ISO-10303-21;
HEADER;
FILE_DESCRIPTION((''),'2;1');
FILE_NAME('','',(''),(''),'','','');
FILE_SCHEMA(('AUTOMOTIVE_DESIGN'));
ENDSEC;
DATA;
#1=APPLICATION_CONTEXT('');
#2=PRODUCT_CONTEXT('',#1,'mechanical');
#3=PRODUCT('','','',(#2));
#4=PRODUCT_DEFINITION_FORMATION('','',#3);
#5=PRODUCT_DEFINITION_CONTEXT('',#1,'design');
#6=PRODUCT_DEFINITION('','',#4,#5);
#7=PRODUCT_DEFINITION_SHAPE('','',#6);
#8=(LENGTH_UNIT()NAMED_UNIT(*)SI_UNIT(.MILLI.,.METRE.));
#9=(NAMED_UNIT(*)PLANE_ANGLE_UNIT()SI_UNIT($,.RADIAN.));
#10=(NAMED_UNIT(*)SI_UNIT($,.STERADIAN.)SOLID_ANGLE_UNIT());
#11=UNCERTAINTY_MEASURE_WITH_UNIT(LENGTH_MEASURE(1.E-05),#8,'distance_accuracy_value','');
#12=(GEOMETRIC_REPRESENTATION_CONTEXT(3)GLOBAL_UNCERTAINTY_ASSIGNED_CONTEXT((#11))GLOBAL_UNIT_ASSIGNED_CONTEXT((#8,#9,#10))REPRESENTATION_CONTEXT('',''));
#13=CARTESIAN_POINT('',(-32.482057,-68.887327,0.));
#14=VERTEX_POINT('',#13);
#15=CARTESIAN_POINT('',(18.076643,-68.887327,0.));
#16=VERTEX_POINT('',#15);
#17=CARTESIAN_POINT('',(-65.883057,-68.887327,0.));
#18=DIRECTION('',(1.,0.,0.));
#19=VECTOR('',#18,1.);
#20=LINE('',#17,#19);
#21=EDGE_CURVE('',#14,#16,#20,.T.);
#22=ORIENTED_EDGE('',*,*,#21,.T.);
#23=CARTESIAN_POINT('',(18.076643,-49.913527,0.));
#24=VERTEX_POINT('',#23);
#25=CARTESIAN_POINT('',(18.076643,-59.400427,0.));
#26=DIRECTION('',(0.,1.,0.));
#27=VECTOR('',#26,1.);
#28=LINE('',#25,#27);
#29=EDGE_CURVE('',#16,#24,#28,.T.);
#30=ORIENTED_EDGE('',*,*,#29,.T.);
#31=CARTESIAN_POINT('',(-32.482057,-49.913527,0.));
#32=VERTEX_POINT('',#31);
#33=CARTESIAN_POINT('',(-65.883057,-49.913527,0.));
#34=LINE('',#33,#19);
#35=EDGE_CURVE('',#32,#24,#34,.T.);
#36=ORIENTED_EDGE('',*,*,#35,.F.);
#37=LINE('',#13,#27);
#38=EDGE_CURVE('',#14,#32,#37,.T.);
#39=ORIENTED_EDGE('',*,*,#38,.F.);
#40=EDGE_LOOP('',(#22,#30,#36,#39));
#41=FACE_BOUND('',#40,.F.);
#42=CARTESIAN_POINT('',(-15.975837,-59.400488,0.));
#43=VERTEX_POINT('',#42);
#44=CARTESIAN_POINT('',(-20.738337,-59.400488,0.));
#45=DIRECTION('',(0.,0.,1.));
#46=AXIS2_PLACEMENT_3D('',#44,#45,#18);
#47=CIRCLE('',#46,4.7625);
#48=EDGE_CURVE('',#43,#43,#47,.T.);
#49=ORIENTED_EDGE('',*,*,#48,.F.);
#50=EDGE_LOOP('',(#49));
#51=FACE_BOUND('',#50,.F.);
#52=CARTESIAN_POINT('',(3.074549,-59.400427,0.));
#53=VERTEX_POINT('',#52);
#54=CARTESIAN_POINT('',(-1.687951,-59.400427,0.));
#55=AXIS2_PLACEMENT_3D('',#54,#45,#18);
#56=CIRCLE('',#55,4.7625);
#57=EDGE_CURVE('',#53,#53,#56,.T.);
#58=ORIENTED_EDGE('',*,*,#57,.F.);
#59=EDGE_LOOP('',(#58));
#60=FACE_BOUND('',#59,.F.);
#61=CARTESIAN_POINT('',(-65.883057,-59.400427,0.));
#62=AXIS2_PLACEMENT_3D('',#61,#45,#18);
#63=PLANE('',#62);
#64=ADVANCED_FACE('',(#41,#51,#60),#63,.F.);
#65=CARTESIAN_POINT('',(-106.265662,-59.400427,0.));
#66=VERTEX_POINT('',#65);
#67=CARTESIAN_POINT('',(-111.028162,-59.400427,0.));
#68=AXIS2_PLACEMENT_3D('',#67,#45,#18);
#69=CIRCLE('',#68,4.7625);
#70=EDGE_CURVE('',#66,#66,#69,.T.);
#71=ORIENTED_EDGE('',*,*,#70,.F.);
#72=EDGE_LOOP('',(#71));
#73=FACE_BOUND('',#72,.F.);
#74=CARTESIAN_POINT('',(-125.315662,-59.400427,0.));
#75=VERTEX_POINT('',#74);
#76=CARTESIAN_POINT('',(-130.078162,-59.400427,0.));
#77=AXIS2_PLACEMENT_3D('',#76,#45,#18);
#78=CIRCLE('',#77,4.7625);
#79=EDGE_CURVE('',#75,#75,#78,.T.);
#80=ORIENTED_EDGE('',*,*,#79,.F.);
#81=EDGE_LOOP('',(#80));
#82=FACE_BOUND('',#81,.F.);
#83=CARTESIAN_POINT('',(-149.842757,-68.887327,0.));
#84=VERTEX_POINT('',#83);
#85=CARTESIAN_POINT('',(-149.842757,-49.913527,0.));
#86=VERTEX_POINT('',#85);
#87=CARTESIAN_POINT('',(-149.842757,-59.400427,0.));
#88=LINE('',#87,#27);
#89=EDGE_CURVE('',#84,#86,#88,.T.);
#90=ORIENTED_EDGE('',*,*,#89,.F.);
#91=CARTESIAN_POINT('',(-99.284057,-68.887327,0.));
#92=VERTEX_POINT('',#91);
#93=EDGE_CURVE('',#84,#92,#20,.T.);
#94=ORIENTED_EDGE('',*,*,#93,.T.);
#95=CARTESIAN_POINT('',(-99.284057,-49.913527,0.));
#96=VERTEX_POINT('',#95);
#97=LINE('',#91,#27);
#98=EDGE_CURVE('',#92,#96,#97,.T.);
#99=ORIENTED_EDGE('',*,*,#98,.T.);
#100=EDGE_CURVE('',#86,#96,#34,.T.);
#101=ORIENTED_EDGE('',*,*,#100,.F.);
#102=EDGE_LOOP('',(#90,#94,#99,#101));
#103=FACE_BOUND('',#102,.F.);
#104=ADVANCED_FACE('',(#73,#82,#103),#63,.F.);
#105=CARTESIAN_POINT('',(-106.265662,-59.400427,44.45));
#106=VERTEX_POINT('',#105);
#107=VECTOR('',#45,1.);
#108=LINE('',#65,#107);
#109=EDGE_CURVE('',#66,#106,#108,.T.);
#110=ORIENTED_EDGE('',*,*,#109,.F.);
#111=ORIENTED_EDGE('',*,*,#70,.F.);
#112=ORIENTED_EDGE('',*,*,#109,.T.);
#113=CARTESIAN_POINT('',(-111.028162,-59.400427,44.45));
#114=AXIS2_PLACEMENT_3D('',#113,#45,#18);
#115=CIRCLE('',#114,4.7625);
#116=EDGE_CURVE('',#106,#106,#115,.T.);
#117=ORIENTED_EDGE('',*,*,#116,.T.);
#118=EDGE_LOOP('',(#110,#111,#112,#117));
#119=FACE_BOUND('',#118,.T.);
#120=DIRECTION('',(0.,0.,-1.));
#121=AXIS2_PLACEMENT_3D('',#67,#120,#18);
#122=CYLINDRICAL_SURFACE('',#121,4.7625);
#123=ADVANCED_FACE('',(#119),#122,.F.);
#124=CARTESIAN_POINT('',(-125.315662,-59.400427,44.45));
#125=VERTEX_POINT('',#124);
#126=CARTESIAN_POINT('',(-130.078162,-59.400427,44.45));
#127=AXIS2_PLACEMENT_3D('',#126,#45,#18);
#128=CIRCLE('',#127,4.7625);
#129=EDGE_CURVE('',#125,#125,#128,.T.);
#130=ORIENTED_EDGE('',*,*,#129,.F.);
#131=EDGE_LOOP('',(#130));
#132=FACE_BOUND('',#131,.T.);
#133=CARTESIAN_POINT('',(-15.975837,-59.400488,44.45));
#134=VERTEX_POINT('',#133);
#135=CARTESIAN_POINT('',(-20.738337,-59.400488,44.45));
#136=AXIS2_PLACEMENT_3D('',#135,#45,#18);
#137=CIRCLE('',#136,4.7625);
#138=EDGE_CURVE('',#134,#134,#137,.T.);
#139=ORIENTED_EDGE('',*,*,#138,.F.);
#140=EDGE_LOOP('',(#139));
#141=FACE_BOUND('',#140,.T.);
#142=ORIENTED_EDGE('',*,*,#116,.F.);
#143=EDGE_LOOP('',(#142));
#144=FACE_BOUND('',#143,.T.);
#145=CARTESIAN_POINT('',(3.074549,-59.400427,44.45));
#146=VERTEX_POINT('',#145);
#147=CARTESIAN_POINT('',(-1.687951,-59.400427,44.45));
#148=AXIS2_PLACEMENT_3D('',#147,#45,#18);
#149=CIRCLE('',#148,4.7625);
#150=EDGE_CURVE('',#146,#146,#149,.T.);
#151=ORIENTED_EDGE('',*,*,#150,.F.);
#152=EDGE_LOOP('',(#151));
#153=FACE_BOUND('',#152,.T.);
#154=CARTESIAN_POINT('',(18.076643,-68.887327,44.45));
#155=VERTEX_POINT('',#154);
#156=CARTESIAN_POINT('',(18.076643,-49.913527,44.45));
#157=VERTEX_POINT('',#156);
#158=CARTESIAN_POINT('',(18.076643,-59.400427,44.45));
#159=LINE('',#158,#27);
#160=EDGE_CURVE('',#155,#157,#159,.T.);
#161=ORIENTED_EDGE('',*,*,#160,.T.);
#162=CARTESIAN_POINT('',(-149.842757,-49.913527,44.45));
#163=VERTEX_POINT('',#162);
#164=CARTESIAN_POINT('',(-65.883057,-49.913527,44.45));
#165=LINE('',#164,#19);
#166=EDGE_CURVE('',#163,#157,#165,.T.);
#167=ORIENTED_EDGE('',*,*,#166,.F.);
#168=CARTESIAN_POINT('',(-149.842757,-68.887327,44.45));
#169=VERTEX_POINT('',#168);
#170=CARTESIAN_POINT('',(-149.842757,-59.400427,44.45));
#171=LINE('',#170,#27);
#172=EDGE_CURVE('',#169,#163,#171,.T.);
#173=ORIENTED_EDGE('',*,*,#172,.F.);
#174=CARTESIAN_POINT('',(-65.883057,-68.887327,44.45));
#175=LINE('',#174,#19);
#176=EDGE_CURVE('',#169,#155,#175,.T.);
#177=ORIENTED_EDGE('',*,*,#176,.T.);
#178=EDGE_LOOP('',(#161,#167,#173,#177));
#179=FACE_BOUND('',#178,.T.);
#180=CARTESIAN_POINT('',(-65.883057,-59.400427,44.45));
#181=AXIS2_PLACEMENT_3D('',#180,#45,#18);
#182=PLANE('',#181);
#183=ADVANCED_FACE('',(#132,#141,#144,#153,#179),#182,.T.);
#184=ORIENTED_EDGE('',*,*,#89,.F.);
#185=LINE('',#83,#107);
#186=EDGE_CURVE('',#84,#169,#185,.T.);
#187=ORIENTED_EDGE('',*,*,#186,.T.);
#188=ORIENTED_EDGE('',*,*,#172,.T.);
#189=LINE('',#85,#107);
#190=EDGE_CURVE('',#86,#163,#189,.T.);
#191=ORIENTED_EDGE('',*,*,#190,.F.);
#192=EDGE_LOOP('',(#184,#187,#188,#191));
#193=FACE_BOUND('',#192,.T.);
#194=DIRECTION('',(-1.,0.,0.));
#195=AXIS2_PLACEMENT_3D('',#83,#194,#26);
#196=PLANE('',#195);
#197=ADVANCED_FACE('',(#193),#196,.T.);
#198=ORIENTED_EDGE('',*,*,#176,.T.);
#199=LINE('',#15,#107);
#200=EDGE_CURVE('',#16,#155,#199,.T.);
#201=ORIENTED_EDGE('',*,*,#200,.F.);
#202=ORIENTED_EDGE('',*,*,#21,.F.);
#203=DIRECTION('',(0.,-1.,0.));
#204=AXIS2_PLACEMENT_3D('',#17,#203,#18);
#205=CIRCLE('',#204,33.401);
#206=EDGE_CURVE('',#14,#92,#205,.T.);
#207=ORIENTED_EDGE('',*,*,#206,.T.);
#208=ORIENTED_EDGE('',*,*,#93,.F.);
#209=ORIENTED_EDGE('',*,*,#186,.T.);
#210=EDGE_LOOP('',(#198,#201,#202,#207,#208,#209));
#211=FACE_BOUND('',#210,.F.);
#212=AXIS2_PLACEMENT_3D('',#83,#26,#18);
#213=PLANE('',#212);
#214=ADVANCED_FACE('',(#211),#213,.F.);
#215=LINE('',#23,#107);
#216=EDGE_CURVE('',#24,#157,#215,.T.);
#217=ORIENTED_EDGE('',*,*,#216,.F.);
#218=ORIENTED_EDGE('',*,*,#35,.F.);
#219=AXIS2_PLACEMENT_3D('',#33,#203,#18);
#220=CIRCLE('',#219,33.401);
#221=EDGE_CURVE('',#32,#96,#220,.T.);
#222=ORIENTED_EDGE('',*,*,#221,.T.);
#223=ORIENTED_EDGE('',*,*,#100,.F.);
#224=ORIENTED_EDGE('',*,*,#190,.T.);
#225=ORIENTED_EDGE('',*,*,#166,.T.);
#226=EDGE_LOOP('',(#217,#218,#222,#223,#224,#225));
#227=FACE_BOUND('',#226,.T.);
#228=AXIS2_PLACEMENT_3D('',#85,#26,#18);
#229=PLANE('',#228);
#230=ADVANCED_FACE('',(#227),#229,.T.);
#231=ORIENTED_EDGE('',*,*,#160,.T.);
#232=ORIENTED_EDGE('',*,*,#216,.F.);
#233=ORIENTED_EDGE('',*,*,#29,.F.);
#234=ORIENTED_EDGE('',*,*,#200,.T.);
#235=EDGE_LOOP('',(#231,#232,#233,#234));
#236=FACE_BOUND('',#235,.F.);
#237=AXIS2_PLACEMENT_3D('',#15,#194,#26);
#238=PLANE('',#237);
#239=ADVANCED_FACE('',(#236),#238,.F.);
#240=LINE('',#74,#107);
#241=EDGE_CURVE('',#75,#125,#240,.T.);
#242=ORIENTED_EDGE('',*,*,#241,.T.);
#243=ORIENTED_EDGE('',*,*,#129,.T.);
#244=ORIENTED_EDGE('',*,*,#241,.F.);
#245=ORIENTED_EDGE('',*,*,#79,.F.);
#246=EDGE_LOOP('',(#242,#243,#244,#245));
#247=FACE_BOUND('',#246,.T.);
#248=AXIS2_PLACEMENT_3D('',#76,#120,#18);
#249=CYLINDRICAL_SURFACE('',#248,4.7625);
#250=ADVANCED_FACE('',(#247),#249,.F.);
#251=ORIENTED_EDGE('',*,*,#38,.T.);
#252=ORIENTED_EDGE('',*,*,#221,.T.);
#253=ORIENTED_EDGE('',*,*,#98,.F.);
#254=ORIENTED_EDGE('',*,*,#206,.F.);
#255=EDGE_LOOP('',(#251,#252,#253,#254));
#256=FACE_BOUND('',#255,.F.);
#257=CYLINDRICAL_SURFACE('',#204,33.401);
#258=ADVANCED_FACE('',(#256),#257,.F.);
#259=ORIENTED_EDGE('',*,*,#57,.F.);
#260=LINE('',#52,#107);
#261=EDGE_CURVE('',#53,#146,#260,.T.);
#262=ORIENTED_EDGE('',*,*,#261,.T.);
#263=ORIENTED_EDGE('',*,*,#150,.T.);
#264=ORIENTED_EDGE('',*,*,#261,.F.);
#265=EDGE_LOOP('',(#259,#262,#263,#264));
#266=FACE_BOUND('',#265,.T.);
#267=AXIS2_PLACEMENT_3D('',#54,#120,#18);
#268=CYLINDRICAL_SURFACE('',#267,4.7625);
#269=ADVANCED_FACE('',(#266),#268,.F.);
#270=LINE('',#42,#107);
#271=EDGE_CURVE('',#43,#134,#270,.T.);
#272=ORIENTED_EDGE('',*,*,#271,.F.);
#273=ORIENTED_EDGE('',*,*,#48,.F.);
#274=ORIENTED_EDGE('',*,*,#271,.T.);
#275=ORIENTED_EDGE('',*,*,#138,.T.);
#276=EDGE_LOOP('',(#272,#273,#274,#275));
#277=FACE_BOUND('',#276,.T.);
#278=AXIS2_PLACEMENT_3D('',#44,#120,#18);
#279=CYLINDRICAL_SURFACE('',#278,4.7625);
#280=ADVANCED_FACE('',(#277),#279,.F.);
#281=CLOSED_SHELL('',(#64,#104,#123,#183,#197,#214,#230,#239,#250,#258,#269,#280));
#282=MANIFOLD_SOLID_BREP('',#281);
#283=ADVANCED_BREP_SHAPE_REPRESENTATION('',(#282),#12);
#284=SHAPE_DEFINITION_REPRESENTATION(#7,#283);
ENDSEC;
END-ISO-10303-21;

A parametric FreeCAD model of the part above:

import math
import FreeCAD as App
import Part
import Sketcher
from FreeCAD import Vector
Q = App.Units.Quantity


def add_polygon(sketch, points):
    """Adds a closed chain of lines whose ends are joined by coincident constraints."""
    first, n = sketch.GeometryCount, len(points)
    for a, b in zip(points, points[1:] + points[:1]):
        sketch.addGeometry(Part.LineSegment(App.Vector(*a, 0), App.Vector(*b, 0)), False)
    for i in range(n):
        sketch.addConstraint(Sketcher.Constraint("Coincident", first + i, 2, first + (i + 1) % n, 1))

doc = App.newDocument("Part")
body = doc.addObject("PartDesign::Body", "Body")

# Sketch on XY plane
sketch1 = body.newObject("Sketcher::SketchObject", "Sketch")
sketch1.AttachmentSupport = (doc.getObject("XY_Plane"), [""])
sketch1.MapMode = "FlatFace"
add_polygon(sketch1, [(-149.8, -49.9), (-149.8, -68.9), (18.1, -68.9), (18.1, -49.9)])  # lines 0-3
sketch1.addGeometry(Part.Circle(Vector(-20.7, -59.4, 0), Vector(0, 0, 1), 4.8), False)  # 4
sketch1.addGeometry(Part.Circle(Vector(-130.1, -59.4, 0), Vector(0, 0, 1), 4.8), False)  # 5
sketch1.addGeometry(Part.Circle(Vector(-111, -59.4, 0), Vector(0, 0, 1), 4.8), False)  # 6
sketch1.addGeometry(Part.Circle(Vector(-1.7, -59.4, 0), Vector(0, 0, 1), 4.8), False)  # 7
sketch1.addConstraint(Sketcher.Constraint("Vertical", 0))
sketch1.addConstraint(Sketcher.Constraint("Horizontal", 1))
sketch1.addConstraint(Sketcher.Constraint("Vertical", 2))
sketch1.addConstraint(Sketcher.Constraint("Horizontal", 3))
sketch1.addConstraint(Sketcher.Constraint("Equal", 4, 5))
sketch1.addConstraint(Sketcher.Constraint("Equal", 5, 6))
sketch1.addConstraint(Sketcher.Constraint("Equal", 6, 7))
sketch1.addConstraint(Sketcher.Constraint("Horizontal", 5, 3, 6, 3))
sketch1.addConstraint(Sketcher.Constraint("Horizontal", 6, 3, 7, 3))
sketch1.addConstraint(Sketcher.Constraint("Diameter", 4, Q("0.375 in")))
sketch1.addConstraint(Sketcher.Constraint("DistanceX", 1, 1, 1, 2, Q("6.611 in")))
sketch1.addConstraint(Sketcher.Constraint("DistanceY", 0, 2, 0, 1, Q("0.747 in")))
sketch1.addConstraint(Sketcher.Constraint("DistanceX", 5, 3, 6, 3, Q("0.75 in")))
sketch1.addConstraint(Sketcher.Constraint("DistanceY", 0, 2, 5, 3, Q("0.3735 in")))
sketch1.addConstraint(Sketcher.Constraint("DistanceX", 7, 3, -1, 1, Q("1.687951 mm")))
sketch1.addConstraint(Sketcher.Constraint("DistanceX", 6, 3, 7, 3, Q("109.340211 mm")))
sketch1.addConstraint(Sketcher.Constraint("DistanceX", 0, 2, 4, 3, Q("129.104419 mm")))
sketch1.addConstraint(Sketcher.Constraint("DistanceY", 0, 2, 4, 3, Q("9.486839 mm")))
sketch1.addConstraint(Sketcher.Constraint("DistanceX", 4, 3, -1, 1, Q("20.738337 mm")))
sketch1.addConstraint(Sketcher.Constraint("DistanceY", 4, 3, -1, 1, Q("59.400488 mm")))
pad1 = body.newObject("PartDesign::Pad", "Pad")
pad1.Profile = sketch1
pad1.Length = Q("1.75 in")

# Sketch on XZ plane
sketch2 = body.newObject("Sketcher::SketchObject", "Sketch001")
sketch2.AttachmentSupport = (doc.getObject("XZ_Plane"), [""])
sketch2.MapMode = "FlatFace"
sketch2.AttachmentOffset = App.Placement(Vector(0, 0, 68.887327), App.Rotation())
sketch2.addGeometry(Part.LineSegment(Vector(-99, 0, 0), Vector(-32, 0, 0)), False)
sketch2.addGeometry(Part.ArcOfCircle(Part.Circle(Vector(-66, 0, 0), Vector(0, 0, 1), 33), math.radians(0), math.radians(180)), False)
sketch2.addConstraint(Sketcher.Constraint("Coincident", 0, 1, 1, 2))
sketch2.addConstraint(Sketcher.Constraint("Coincident", 1, 1, 0, 2))
sketch2.addConstraint(Sketcher.Constraint("Horizontal", 0))
sketch2.addConstraint(Sketcher.Constraint("PointOnObject", 1, 3, -1))
sketch2.addConstraint(Sketcher.Constraint("PointOnObject", 0, 1, -1))
sketch2.addConstraint(Sketcher.Constraint("Radius", 1, Q("1.315 in")))
sketch2.addConstraint(Sketcher.Constraint("DistanceX", 1, 3, -1, 1, Q("65.883057 mm")))
pocket1 = body.newObject("PartDesign::Pocket", "Pocket")
pocket1.Profile = sketch2
pocket1.Length = Q("1 in")

doc.recompute()
